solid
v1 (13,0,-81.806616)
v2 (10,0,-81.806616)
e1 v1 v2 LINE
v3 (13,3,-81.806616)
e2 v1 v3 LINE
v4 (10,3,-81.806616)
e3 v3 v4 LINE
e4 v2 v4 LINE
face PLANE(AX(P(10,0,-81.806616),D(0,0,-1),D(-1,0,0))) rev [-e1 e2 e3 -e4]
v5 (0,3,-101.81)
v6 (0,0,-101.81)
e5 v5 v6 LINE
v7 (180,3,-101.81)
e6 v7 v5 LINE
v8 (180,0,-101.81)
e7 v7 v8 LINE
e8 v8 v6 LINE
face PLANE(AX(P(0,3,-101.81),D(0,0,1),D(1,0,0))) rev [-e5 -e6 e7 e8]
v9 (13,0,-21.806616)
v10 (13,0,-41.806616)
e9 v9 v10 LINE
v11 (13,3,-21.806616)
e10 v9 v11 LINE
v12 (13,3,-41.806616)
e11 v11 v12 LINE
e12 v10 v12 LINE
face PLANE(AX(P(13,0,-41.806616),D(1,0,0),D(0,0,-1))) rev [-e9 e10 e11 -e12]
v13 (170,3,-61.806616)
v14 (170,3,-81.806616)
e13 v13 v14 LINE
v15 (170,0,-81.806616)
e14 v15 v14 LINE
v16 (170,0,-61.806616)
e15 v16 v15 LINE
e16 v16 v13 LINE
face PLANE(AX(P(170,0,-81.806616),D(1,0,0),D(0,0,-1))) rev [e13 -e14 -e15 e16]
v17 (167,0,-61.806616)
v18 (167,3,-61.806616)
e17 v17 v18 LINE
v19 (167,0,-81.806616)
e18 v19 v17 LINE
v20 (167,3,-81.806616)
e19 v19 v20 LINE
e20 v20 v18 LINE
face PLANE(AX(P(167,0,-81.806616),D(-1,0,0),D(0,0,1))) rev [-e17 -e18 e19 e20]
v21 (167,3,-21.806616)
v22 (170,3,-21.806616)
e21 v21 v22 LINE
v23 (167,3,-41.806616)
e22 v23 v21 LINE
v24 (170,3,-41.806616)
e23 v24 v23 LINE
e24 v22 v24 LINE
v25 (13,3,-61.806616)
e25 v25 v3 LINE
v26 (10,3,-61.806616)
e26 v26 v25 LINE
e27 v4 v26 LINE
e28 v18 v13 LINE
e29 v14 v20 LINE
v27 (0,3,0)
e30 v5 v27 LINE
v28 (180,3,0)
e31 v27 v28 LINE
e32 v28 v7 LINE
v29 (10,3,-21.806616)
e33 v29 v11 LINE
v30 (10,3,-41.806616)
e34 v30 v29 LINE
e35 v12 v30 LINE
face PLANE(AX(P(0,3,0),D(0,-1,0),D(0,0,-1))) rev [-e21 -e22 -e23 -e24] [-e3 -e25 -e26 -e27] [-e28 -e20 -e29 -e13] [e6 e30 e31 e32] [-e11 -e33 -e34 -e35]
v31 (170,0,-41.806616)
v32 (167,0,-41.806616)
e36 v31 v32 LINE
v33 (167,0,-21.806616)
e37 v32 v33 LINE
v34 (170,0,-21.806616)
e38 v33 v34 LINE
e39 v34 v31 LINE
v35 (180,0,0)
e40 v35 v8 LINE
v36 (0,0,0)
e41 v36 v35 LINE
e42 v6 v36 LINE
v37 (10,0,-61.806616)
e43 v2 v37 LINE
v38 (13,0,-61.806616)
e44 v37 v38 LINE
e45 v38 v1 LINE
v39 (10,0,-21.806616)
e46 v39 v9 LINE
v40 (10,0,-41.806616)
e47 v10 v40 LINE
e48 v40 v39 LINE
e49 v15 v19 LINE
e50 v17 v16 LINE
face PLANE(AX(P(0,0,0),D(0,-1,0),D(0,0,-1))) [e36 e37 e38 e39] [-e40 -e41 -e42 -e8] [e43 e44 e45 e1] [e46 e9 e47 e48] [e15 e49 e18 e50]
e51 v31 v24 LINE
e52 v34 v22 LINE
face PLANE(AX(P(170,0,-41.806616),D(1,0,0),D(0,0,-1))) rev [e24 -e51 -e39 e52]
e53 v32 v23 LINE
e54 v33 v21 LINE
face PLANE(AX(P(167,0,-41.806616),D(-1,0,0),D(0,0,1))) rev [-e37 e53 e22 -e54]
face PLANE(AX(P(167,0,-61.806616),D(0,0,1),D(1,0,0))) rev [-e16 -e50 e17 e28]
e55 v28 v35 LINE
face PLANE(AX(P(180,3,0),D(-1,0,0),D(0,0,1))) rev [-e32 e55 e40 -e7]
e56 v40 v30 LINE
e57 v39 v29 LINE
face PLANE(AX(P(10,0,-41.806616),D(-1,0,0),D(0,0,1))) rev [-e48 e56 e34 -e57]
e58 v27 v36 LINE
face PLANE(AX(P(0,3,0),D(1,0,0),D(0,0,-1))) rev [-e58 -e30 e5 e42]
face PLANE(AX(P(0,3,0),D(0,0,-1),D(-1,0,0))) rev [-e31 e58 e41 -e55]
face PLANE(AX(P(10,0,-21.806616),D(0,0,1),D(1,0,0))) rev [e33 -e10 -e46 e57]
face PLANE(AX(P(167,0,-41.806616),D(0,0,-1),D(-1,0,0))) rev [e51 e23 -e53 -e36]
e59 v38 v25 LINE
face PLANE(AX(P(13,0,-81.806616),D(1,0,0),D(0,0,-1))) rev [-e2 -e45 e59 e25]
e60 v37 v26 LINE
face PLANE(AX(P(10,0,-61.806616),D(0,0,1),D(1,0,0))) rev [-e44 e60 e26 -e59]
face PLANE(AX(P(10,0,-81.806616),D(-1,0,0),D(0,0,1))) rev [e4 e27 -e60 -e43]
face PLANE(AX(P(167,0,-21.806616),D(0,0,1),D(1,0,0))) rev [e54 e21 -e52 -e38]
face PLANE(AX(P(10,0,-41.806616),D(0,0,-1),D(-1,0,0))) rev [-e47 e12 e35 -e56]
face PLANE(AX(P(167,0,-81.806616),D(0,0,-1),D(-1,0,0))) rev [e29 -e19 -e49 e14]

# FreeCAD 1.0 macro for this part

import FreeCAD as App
import Part
import Sketcher
from FreeCAD import Vector
Q = App.Units.Quantity


def add_polygon(sketch, points):
    """Adds a closed chain of lines whose ends are joined by coincident constraints."""
    first, n = sketch.GeometryCount, len(points)
    for a, b in zip(points, points[1:] + points[:1]):
        sketch.addGeometry(Part.LineSegment(App.Vector(*a, 0), App.Vector(*b, 0)), False)
    for i in range(n):
        sketch.addConstraint(Sketcher.Constraint("Coincident", first + i, 2, first + (i + 1) % n, 1))

doc = App.newDocument("Part")
body = doc.addObject("PartDesign::Body", "Body")

# Sketch on XZ plane
sketch1 = body.newObject("Sketcher::SketchObject", "Sketch")
sketch1.AttachmentSupport = (doc.getObject("XZ_Plane"), [""])
sketch1.MapMode = "FlatFace"
add_polygon(sketch1, [(0, -102), (0, 0), (180, 0), (180, -102)])  # lines 0-3
sketch1.addConstraint(Sketcher.Constraint("Vertical", 0))
sketch1.addConstraint(Sketcher.Constraint("Horizontal", 1))
sketch1.addConstraint(Sketcher.Constraint("Vertical", 2))
sketch1.addConstraint(Sketcher.Constraint("Horizontal", 3))
sketch1.addConstraint(Sketcher.Constraint("Coincident", 0, 2, -1, 1))
sketch1.addConstraint(Sketcher.Constraint("DistanceX", 1, 1, 1, 2, Q("180 mm")))
sketch1.addConstraint(Sketcher.Constraint("DistanceY", 0, 1, 0, 2, Q("101.81 mm")))
pad1 = body.newObject("PartDesign::Pad", "Pad")
pad1.Profile = sketch1
pad1.Length = 3
pad1.Reversed = True

# Sketch on XZ plane
sketch2 = body.newObject("Sketcher::SketchObject", "Sketch001")
sketch2.AttachmentSupport = (doc.getObject("XZ_Plane"), [""])
sketch2.MapMode = "FlatFace"
sketch2.AttachmentOffset = App.Placement(Vector(0, 0, -3), App.Rotation())
add_polygon(sketch2, [(10, -81.8), (10, -61.8), (13, -61.8), (13, -81.8)])  # lines 0-3
add_polygon(sketch2, [(10, -41.8), (10, -21.8), (13, -21.8), (13, -41.8)])  # lines 4-7
add_polygon(sketch2, [(167, -81.8), (167, -61.8), (170, -61.8), (170, -81.8)])  # lines 8-11
add_polygon(sketch2, [(167, -41.8), (167, -21.8), (170, -21.8), (170, -41.8)])  # lines 12-15
sketch2.addConstraint(Sketcher.Constraint("Vertical", 0))
sketch2.addConstraint(Sketcher.Constraint("Horizontal", 1))
sketch2.addConstraint(Sketcher.Constraint("Vertical", 2))
sketch2.addConstraint(Sketcher.Constraint("Horizontal", 3))
sketch2.addConstraint(Sketcher.Constraint("Vertical", 4))
sketch2.addConstraint(Sketcher.Constraint("Horizontal", 5))
sketch2.addConstraint(Sketcher.Constraint("Vertical", 6))
sketch2.addConstraint(Sketcher.Constraint("Horizontal", 7))
sketch2.addConstraint(Sketcher.Constraint("Vertical", 8))
sketch2.addConstraint(Sketcher.Constraint("Horizontal", 9))
sketch2.addConstraint(Sketcher.Constraint("Vertical", 10))
sketch2.addConstraint(Sketcher.Constraint("Horizontal", 11))
sketch2.addConstraint(Sketcher.Constraint("Vertical", 12))
sketch2.addConstraint(Sketcher.Constraint("Horizontal", 13))
sketch2.addConstraint(Sketcher.Constraint("Vertical", 14))
sketch2.addConstraint(Sketcher.Constraint("Horizontal", 15))
sketch2.addConstraint(Sketcher.Constraint("Horizontal", 1, 2, 8, 2))
sketch2.addConstraint(Sketcher.Constraint("Horizontal", 3, 2, 10, 2))
sketch2.addConstraint(Sketcher.Constraint("Horizontal", 5, 2, 12, 2))
sketch2.addConstraint(Sketcher.Constraint("Horizontal", 7, 2, 14, 2))
sketch2.addConstraint(Sketcher.Constraint("Vertical", 3, 2, 4, 2))
sketch2.addConstraint(Sketcher.Constraint("Vertical", 2, 2, 5, 2))
sketch2.addConstraint(Sketcher.Constraint("Vertical", 11, 2, 12, 2))
sketch2.addConstraint(Sketcher.Constraint("Vertical", 10, 2, 13, 2))
sketch2.addConstraint(Sketcher.Constraint("Equal", 7, 9))
sketch2.addConstraint(Sketcher.Constraint("Equal", 2, 4))
sketch2.addConstraint(Sketcher.Constraint("DistanceX", 1, 1, 1, 2, Q("3 mm")))
sketch2.addConstraint(Sketcher.Constraint("DistanceY", 0, 1, 0, 2, Q("20 mm")))
sketch2.addConstraint(Sketcher.Constraint("DistanceX", -1, 1, 0, 2, Q("10 mm")))
sketch2.addConstraint(Sketcher.Constraint("DistanceX", -1, 1, 8, 2, Q("167 mm")))
sketch2.addConstraint(Sketcher.Constraint("DistanceY", 0, 2, 4, 2, Q("40 mm")))
sketch2.addConstraint(Sketcher.Constraint("DistanceY", 0, 2, -1, 1, Q("61.806616 mm")))
pocket1 = body.newObject("PartDesign::Pocket", "Pocket")
pocket1.Profile = sketch2
pocket1.Length = 3
pocket1.Reversed = True

doc.recompute()
